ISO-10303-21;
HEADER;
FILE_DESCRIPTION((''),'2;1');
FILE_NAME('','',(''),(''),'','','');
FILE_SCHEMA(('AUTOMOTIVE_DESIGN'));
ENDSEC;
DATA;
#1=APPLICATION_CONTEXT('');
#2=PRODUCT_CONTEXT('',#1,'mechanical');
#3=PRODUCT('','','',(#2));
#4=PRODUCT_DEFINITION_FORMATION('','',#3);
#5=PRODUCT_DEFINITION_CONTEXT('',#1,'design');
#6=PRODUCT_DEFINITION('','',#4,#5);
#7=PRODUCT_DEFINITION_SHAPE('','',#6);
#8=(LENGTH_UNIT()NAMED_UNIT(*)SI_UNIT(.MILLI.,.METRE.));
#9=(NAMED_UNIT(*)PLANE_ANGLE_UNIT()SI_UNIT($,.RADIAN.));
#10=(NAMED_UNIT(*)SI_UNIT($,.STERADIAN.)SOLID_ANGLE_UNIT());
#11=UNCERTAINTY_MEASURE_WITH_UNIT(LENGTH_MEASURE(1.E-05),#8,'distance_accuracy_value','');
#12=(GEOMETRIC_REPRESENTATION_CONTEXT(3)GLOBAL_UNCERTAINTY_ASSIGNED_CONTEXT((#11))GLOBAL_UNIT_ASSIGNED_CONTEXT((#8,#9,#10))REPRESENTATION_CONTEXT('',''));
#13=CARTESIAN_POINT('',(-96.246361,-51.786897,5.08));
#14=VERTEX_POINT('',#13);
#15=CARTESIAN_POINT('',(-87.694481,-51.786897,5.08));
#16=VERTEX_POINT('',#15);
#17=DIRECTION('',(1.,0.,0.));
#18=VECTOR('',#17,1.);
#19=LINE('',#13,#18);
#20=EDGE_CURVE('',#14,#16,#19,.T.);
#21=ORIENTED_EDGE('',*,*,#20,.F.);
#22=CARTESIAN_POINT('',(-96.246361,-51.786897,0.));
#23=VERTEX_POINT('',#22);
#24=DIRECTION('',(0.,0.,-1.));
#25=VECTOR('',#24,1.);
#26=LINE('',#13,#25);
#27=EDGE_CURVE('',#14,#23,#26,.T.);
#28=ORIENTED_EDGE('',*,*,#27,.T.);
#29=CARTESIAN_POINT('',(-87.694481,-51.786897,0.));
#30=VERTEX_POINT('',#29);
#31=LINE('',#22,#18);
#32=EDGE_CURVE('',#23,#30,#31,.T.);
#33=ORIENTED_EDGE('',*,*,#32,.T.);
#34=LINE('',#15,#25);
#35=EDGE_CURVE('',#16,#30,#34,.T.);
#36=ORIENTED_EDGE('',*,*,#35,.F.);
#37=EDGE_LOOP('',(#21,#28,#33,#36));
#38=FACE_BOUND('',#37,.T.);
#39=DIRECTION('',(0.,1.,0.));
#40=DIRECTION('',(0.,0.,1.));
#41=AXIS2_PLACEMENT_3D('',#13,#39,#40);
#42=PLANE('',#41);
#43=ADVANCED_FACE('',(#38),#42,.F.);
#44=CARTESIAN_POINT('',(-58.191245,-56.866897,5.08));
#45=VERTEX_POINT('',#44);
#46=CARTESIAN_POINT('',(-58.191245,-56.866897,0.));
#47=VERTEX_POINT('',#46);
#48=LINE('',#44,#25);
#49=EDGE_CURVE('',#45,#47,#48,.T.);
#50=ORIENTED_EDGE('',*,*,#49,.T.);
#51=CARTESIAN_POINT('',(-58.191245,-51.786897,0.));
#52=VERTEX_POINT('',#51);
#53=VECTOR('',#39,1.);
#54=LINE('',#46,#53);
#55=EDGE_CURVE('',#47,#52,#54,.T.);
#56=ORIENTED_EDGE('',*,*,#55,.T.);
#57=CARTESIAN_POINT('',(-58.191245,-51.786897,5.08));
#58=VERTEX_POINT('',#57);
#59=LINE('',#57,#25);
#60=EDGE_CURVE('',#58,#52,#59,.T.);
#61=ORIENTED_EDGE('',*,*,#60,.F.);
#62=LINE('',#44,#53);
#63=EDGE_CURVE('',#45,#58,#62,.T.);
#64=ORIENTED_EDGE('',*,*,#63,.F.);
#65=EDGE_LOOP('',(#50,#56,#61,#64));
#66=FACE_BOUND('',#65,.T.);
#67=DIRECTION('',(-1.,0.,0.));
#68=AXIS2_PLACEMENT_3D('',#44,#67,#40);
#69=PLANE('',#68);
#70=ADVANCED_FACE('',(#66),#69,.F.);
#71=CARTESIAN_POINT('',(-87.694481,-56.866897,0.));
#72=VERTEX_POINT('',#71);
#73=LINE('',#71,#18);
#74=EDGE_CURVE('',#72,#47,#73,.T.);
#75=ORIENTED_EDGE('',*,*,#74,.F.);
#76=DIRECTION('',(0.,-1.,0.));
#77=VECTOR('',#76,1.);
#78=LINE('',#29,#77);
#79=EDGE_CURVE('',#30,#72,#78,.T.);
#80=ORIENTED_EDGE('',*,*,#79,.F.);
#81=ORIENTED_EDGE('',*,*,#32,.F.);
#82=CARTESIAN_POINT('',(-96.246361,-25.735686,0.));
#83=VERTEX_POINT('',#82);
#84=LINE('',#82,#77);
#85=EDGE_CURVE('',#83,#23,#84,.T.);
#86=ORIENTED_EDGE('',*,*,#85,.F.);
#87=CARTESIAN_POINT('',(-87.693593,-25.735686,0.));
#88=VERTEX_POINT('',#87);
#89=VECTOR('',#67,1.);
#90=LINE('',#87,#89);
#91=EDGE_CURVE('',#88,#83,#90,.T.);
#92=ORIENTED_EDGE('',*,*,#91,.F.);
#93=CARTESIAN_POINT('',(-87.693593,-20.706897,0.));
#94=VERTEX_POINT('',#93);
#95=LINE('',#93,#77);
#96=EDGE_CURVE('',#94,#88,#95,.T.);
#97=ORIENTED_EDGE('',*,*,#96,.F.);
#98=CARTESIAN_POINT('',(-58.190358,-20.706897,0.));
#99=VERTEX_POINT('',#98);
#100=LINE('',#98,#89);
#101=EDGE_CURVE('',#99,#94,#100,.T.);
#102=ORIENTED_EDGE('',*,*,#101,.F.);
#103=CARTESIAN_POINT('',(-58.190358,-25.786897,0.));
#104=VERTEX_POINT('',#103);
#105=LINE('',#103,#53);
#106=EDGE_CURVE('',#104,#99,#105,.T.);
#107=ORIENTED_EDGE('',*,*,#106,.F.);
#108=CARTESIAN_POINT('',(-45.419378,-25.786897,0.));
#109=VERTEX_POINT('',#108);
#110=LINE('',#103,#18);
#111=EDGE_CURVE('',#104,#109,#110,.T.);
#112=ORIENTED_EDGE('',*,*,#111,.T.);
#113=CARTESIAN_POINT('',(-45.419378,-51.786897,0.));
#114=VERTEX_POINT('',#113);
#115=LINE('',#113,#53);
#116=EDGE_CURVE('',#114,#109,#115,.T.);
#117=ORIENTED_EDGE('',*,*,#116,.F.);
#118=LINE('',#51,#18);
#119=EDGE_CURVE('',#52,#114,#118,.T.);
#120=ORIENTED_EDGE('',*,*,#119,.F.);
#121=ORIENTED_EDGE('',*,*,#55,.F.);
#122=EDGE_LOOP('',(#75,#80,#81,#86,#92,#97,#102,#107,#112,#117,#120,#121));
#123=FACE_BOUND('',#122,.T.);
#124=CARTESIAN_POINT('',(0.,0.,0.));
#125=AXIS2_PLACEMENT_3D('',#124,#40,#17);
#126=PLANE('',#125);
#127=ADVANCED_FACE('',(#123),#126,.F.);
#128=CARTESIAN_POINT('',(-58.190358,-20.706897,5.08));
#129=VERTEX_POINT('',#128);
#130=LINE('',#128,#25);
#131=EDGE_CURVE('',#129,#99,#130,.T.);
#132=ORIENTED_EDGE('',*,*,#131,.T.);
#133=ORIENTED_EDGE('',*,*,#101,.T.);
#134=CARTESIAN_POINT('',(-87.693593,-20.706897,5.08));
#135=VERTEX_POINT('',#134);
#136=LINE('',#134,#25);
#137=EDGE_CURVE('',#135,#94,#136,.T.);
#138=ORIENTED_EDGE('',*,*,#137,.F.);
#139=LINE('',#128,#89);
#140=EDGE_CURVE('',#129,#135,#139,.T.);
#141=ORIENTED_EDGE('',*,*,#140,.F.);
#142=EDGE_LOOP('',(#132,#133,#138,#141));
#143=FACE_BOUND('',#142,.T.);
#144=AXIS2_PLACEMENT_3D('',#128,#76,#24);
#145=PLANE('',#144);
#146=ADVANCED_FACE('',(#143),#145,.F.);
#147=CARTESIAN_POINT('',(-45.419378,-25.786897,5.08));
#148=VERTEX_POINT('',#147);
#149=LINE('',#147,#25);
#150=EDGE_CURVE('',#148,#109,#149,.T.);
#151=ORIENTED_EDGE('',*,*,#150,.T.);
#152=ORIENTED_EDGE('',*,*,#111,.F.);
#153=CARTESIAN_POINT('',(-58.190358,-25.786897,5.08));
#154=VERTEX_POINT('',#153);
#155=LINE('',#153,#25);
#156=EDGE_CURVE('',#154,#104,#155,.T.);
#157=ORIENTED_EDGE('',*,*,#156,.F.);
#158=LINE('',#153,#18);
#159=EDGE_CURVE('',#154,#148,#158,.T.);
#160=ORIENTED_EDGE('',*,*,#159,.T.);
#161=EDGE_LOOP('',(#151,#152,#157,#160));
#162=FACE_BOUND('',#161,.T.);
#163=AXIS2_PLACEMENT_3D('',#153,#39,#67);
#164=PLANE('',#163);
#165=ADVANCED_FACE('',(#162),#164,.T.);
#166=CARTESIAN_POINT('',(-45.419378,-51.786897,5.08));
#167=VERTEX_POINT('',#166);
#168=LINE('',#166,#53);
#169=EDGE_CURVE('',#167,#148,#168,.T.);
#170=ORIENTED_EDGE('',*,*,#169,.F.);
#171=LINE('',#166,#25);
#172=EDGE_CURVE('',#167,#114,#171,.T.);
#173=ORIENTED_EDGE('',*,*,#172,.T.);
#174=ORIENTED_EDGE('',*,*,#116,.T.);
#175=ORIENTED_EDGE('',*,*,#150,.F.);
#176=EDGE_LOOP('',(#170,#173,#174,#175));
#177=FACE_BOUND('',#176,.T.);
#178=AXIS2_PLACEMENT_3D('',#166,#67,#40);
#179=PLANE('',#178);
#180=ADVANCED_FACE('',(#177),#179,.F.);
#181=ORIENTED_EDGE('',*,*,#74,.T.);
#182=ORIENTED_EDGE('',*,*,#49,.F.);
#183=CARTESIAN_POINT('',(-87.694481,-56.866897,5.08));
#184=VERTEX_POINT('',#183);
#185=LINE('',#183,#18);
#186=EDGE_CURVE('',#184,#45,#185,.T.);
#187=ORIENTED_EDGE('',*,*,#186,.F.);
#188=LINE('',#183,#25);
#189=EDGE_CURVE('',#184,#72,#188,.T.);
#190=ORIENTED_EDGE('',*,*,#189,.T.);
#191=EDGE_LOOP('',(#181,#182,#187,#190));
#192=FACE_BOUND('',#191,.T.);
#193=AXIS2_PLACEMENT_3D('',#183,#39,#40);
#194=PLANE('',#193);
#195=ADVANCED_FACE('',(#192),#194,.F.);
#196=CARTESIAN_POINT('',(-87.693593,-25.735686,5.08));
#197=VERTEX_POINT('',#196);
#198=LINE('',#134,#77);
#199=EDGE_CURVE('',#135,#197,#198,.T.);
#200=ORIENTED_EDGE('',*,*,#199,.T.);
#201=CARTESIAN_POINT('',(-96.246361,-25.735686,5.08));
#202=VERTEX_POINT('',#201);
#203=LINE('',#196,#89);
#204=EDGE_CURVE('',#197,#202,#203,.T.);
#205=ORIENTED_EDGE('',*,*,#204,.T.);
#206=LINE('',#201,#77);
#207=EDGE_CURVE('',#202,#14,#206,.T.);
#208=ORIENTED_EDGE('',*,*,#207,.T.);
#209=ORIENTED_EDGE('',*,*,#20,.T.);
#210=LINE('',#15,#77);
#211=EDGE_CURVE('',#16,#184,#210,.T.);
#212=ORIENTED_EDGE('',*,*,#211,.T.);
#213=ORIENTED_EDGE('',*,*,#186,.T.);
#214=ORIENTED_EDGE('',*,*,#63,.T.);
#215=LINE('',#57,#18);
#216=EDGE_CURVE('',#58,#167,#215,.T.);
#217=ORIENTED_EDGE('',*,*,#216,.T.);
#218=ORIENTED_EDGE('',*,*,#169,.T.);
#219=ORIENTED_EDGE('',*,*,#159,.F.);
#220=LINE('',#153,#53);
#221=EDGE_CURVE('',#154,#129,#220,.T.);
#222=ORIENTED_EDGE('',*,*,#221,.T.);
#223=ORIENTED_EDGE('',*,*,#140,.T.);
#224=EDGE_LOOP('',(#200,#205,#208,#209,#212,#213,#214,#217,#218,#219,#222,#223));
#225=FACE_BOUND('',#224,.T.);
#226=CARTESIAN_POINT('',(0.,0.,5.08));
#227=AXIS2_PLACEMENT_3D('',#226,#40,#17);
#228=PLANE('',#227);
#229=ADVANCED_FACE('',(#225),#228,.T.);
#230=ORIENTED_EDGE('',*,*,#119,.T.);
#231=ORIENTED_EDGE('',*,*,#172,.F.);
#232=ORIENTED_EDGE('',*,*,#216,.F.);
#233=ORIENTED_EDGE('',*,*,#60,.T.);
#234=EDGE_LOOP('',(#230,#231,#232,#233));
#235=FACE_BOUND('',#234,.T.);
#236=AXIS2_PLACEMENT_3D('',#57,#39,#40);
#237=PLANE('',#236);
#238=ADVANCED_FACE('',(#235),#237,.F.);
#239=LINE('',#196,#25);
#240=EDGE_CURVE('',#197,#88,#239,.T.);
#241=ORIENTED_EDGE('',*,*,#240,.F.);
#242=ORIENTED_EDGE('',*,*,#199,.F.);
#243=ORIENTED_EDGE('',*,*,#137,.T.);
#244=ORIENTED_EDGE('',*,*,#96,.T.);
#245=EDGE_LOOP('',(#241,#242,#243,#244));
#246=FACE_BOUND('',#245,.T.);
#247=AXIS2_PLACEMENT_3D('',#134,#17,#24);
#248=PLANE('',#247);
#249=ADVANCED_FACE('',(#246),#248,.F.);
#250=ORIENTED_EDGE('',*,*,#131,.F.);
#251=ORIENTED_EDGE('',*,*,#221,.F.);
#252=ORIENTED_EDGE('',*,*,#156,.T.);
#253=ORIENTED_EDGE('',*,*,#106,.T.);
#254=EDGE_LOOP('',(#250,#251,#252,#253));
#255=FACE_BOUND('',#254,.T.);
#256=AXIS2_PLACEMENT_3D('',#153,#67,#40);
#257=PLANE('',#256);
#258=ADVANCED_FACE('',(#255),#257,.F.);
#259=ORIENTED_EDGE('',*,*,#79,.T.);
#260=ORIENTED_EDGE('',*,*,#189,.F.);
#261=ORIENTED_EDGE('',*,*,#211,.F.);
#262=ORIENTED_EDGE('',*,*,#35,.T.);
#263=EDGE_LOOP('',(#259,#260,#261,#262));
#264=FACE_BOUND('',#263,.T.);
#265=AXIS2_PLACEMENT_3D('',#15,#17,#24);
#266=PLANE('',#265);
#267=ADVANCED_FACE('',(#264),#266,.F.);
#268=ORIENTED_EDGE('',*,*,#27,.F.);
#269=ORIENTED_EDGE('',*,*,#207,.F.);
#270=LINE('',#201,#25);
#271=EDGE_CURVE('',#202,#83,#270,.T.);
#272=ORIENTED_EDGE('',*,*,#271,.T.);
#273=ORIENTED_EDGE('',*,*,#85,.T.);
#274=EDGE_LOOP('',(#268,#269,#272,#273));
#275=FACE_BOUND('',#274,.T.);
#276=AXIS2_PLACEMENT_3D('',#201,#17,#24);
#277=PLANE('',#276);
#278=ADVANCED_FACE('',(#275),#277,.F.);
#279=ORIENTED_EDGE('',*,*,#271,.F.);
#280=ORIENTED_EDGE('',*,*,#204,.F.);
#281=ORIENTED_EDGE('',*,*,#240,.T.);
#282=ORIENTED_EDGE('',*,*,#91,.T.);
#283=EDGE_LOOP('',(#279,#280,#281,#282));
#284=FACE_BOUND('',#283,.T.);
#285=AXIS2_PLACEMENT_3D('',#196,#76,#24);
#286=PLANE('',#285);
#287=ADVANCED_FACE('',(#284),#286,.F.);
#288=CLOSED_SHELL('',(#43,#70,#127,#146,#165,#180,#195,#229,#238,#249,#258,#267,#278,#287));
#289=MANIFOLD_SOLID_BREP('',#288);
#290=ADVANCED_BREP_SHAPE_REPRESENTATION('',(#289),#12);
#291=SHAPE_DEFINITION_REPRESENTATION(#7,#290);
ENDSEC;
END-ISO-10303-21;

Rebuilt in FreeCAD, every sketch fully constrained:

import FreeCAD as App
import Part
import Sketcher

V = App.Vector


def add_polygon(sketch, points):
    """Adds a closed chain of lines whose ends are joined by coincident constraints."""
    first, n = sketch.GeometryCount, len(points)
    for a, b in zip(points, points[1:] + points[:1]):
        sketch.addGeometry(Part.LineSegment(App.Vector(*a, 0), App.Vector(*b, 0)), False)
    for i in range(n):
        sketch.addConstraint(Sketcher.Constraint("Coincident", first + i, 2, first + (i + 1) % n, 1))

doc = App.newDocument("Part")
body = doc.addObject("PartDesign::Body", "Body")

sketch1 = body.newObject("Sketcher::SketchObject", "Sketch")
sketch1.AttachmentSupport = (doc.getObject("XY_Plane"), [""])
sketch1.MapMode = "FlatFace"
add_polygon(sketch1, [(-88, -21), (-88, -26), (-96, -26), (-96, -52), (-88, -52), (-88, -57), (-58, -57), (-58, -52), (-45, -52), (-45, -26), (-58, -26), (-58, -21)])
sketch1.addConstraint([
    Sketcher.Constraint("Vertical", 0),
    Sketcher.Constraint("Horizontal", 1),
    Sketcher.Constraint("Vertical", 2),
    Sketcher.Constraint("Horizontal", 3),
    Sketcher.Constraint("Vertical", 4),
    Sketcher.Constraint("Horizontal", 5),
    Sketcher.Constraint("Vertical", 6),
    Sketcher.Constraint("Horizontal", 7),
    Sketcher.Constraint("Vertical", 8),
    Sketcher.Constraint("Horizontal", 9),
    Sketcher.Constraint("Vertical", 10),
    Sketcher.Constraint("Horizontal", 11),
    Sketcher.Constraint("Horizontal", 3, 2, 6, 2),
    Sketcher.Constraint("Equal", 5, 11),
    Sketcher.Constraint("Equal", 6, 10),
    Sketcher.Constraint("DistanceY", 8, 1, 8, 2, 26.0),
    Sketcher.Constraint("DistanceY", 4, 2, 4, 1, 5.08),
    Sketcher.Constraint("DistanceX", 3, 1, 3, 2, 8.55188),
    Sketcher.Constraint("DistanceX", 9, 2, 9, 1, 12.77098),
    Sketcher.Constraint("DistanceY", 0, 2, 0, 1, 5.028788),
    Sketcher.Constraint("DistanceX", 1, 2, 1, 1, 8.552768),
    Sketcher.Constraint("DistanceX", 5, 1, 5, 2, 29.503235),
    Sketcher.Constraint("DistanceX", 1, 2, -1, 1, 96.246361),
    Sketcher.Constraint("DistanceY", 0, 2, -1, 1, 25.735686),
])
pad1 = body.newObject("PartDesign::Pad", "Pad")
pad1.Profile = sketch1
pad1.Length = 5.08

doc.recompute()
